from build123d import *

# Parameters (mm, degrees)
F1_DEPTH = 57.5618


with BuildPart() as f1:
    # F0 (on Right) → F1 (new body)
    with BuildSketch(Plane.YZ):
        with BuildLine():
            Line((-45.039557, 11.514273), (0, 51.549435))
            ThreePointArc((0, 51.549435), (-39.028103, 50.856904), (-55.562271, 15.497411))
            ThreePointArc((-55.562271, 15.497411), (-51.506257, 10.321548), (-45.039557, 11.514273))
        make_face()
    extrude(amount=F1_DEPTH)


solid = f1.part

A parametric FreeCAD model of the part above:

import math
import FreeCAD as App
import Part
import Sketcher

V = App.Vector
Q = App.Units.Quantity

doc = App.newDocument("Part")
body = doc.addObject("PartDesign::Body", "Body")

# Sketch on YZ plane
sketch1 = body.newObject("Sketcher::SketchObject", "Sketch")
sketch1.AttachmentSupport = (doc.getObject("YZ_Plane"), [""])
sketch1.MapMode = "FlatFace"
sketch1.addGeometry(Part.LineSegment(V(-45, 12, 0), V(0, 52, 0)), False)
sketch1.addGeometry(Part.ArcOfCircle(Part.Circle(V(-19, 20, 0), V(0, 0, 1), 37), math.radians(59), math.radians(187)), False)
sketch1.addGeometry(Part.ArcOfCircle(Part.Circle(V(-49, 16, 0), V(0, 0, 1), 6), math.radians(-173), math.radians(-48)), False)
sketch1.addConstraint(Sketcher.Constraint("Coincident", 0, 2, 1, 1))
sketch1.addConstraint(Sketcher.Constraint("Tangent", 1, 2, 2, 1))
sketch1.addConstraint(Sketcher.Constraint("Tangent", 2, 2, 0, 1))
sketch1.addConstraint(Sketcher.Constraint("PointOnObject", 0, 2, -2))
sketch1.addConstraint(Sketcher.Constraint("Radius", 2, Q("0.25 in")))
sketch1.addConstraint(Sketcher.Constraint("Radius", 1, Q("36.870263 mm")))
sketch1.addConstraint(Sketcher.Constraint("Distance", 0, Q("60.260899 mm")))
sketch1.addConstraint(Sketcher.Constraint("DistanceY", 1, 3, 0, 2, Q("31.622298 mm")))
sketch1.addConstraint(Sketcher.Constraint("DistanceY", -1, 1, 1, 2, Q("15.497411 mm")))
pad1 = body.newObject("PartDesign::Pad", "Pad")
pad1.Profile = sketch1
pad1.Length = 57.5618

doc.recompute()
